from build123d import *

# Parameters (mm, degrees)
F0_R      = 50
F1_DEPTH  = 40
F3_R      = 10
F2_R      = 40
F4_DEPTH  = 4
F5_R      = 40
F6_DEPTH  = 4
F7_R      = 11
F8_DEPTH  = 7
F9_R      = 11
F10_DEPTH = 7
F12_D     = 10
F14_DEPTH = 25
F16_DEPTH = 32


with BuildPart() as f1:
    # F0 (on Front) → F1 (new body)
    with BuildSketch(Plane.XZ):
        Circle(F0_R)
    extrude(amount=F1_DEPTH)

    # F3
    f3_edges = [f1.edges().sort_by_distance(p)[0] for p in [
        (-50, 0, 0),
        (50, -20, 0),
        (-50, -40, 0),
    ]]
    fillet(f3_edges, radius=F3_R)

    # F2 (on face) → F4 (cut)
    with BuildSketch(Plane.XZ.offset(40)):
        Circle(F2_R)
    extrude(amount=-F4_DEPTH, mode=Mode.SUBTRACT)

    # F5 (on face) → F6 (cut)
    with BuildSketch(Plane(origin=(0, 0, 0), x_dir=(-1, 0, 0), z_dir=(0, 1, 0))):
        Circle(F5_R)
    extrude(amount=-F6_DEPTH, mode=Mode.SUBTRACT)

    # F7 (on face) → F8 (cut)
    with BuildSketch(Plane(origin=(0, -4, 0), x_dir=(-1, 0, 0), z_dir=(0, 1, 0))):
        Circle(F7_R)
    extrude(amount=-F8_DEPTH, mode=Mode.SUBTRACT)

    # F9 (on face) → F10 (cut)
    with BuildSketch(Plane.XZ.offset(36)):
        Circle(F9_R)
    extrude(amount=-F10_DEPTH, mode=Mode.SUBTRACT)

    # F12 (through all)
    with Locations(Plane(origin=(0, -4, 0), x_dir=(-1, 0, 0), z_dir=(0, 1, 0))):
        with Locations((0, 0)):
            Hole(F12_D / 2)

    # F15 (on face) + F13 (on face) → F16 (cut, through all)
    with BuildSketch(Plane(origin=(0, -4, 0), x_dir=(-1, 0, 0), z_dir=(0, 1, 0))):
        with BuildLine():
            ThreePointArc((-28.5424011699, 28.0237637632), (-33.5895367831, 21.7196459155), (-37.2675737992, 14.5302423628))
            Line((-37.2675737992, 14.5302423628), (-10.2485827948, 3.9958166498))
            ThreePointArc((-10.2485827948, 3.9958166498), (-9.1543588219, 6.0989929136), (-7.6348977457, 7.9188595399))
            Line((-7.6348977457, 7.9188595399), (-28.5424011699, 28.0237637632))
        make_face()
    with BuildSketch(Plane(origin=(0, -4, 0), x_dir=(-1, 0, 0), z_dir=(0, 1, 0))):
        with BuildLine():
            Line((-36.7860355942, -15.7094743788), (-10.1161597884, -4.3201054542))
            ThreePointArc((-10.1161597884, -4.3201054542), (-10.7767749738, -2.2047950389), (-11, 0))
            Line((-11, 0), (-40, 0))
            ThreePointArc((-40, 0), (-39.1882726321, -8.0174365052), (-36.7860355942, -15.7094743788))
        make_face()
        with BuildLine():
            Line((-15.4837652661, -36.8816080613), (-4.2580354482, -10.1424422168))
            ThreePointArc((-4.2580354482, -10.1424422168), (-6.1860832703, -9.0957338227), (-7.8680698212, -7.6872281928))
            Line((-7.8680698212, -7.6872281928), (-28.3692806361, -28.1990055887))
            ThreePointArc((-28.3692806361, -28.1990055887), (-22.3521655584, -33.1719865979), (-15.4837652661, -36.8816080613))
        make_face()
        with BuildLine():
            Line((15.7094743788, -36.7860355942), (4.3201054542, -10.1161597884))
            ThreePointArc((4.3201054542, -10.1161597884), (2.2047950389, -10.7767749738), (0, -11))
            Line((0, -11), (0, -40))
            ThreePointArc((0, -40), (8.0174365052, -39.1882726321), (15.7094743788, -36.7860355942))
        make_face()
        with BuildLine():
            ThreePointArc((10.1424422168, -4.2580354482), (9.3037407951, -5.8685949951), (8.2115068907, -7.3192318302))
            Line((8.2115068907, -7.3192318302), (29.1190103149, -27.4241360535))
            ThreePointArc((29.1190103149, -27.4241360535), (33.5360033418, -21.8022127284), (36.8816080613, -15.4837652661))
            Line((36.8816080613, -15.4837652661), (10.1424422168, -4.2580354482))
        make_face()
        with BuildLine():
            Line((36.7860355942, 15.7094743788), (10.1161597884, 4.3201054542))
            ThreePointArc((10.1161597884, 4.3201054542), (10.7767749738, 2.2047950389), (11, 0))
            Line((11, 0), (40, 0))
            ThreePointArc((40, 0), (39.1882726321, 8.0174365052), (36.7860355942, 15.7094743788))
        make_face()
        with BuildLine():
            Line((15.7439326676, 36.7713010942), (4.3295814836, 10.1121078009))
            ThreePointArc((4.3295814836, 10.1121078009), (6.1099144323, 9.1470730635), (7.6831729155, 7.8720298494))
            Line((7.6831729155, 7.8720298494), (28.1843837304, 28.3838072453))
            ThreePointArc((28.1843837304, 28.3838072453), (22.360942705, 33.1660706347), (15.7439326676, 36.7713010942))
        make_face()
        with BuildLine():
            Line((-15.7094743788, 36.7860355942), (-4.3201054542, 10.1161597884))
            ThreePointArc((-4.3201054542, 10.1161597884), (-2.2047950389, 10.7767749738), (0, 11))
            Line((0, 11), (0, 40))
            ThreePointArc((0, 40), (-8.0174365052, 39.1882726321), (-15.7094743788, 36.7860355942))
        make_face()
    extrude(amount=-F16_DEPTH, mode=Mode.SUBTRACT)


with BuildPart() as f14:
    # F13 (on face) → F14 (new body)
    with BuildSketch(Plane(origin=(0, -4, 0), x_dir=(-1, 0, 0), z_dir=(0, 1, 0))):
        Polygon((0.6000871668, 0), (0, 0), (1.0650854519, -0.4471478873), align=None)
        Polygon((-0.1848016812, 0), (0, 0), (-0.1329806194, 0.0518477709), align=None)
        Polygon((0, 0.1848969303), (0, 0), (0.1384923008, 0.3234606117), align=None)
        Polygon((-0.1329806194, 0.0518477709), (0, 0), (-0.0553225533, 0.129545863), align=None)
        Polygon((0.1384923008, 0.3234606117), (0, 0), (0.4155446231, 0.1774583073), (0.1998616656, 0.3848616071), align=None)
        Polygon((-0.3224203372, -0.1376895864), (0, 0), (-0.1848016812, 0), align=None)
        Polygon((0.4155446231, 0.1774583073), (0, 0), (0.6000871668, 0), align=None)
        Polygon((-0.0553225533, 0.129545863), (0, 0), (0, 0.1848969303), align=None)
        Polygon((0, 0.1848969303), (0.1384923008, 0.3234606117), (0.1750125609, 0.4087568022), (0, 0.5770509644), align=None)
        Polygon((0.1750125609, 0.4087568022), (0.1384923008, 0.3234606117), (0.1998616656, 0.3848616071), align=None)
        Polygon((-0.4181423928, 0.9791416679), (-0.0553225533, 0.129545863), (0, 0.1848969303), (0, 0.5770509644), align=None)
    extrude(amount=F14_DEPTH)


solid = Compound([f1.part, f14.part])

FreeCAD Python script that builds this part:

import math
import FreeCAD as App
import Part
import Sketcher
from FreeCAD import Vector

doc = App.newDocument("Part")
body = doc.addObject("PartDesign::Body", "Body")

# Sketch on XZ plane
sketch1 = doc.addObject("Sketcher::SketchObject", "Sketch")
body.addObject(sketch1)
sketch1.AttachmentSupport = (doc.XZ_Plane, [""])
sketch1.MapMode = "FlatFace"
sketch1.addGeometry(Part.Circle(Vector(0, 0, 0), Vector(0, 0, 1), 50), False)
sketch1.addConstraint(Sketcher.Constraint("Coincident", 0, 3, -1, 1))
sketch1.addConstraint(Sketcher.Constraint("Diameter", 0, 100.0))
pad1 = doc.addObject("PartDesign::Pad", "Pad")
body.addObject(pad1)
pad1.Profile = sketch1
pad1.Length = 40
doc.recompute()

fillet = doc.addObject("PartDesign::Fillet", "Fillet")
body.addObject(fillet)
fillet.Base = (pad1, ["Edge1"])
fillet.UseAllEdges = True
fillet.Radius = 10

# Sketch on XZ plane
sketch2 = doc.addObject("Sketcher::SketchObject", "Sketch001")
body.addObject(sketch2)
sketch2.AttachmentSupport = (doc.XZ_Plane, [""])
sketch2.MapMode = "FlatFace"
sketch2.AttachmentOffset = App.Placement(Vector(0, 0, 40), App.Rotation())
sketch2.addGeometry(Part.Circle(Vector(0, 0, 0), Vector(0, 0, 1), 40), False)
sketch2.addConstraint(Sketcher.Constraint("Coincident", 0, 3, -1, 1))
sketch2.addConstraint(Sketcher.Constraint("Diameter", 0, 80.0))
pocket1 = doc.addObject("PartDesign::Pocket", "Pocket")
body.addObject(pocket1)
pocket1.Profile = sketch2
pocket1.Length = 4

# Sketch on XZ plane
sketch3 = doc.addObject("Sketcher::SketchObject", "Sketch002")
body.addObject(sketch3)
sketch3.AttachmentSupport = (doc.XZ_Plane, [""])
sketch3.MapMode = "FlatFace"
sketch3.addGeometry(Part.Circle(Vector(0, 0, 0), Vector(0, 0, 1), 40), False)
sketch3.addConstraint(Sketcher.Constraint("Coincident", 0, 3, -1, 1))
sketch3.addConstraint(Sketcher.Constraint("Diameter", 0, 80.0))
pocket2 = doc.addObject("PartDesign::Pocket", "Pocket001")
body.addObject(pocket2)
pocket2.Profile = sketch3
pocket2.Length = 4
pocket2.Reversed = True

# Sketch on XZ plane
sketch4 = doc.addObject("Sketcher::SketchObject", "Sketch003")
body.addObject(sketch4)
sketch4.AttachmentSupport = (doc.XZ_Plane, [""])
sketch4.MapMode = "FlatFace"
sketch4.AttachmentOffset = App.Placement(Vector(0, 0, 4), App.Rotation())
sketch4.addGeometry(Part.Circle(Vector(0, 0, 0), Vector(0, 0, 1), 11), False)
sketch4.addConstraint(Sketcher.Constraint("Coincident", 0, 3, -1, 1))
sketch4.addConstraint(Sketcher.Constraint("Diameter", 0, 22.0))
pocket3 = doc.addObject("PartDesign::Pocket", "Pocket002")
body.addObject(pocket3)
pocket3.Profile = sketch4
pocket3.Length = 7
pocket3.Reversed = True

# Sketch on XZ plane
sketch5 = doc.addObject("Sketcher::SketchObject", "Sketch004")
body.addObject(sketch5)
sketch5.AttachmentSupport = (doc.XZ_Plane, [""])
sketch5.MapMode = "FlatFace"
sketch5.AttachmentOffset = App.Placement(Vector(0, 0, 36), App.Rotation())
sketch5.addGeometry(Part.Circle(Vector(0, 0, 0), Vector(0, 0, 1), 11), False)
sketch5.addConstraint(Sketcher.Constraint("Coincident", 0, 3, -1, 1))
sketch5.addConstraint(Sketcher.Constraint("Diameter", 0, 22.0))
pocket4 = doc.addObject("PartDesign::Pocket", "Pocket003")
body.addObject(pocket4)
pocket4.Profile = sketch5
pocket4.Length = 7

# Sketch on XZ plane
sketch6 = doc.addObject("Sketcher::SketchObject", "Sketch005")
body.addObject(sketch6)
sketch6.AttachmentSupport = (doc.XZ_Plane, [""])
sketch6.MapMode = "FlatFace"
sketch6.AttachmentOffset = App.Placement(Vector(0, 0, 4), App.Rotation())
sketch6.addGeometry(Part.Circle(Vector(0, 0, 0), Vector(0, 0, 1), 5), False)
sketch6.addConstraint(Sketcher.Constraint("Coincident", 0, 3, -1, 1))
sketch6.addConstraint(Sketcher.Constraint("Diameter", 0, 10.0))
doc.recompute()
hole = doc.addObject("PartDesign::Hole", "Hole")
body.addObject(hole)
hole.Profile = sketch6
hole.ThreadType = "None"
hole.Diameter = 10
hole.DepthType = "ThroughAll"
hole.Reversed = True

# Sketch on XZ plane
sketch7 = doc.addObject("Sketcher::SketchObject", "Sketch006")
body.addObject(sketch7)
sketch7.AttachmentSupport = (doc.XZ_Plane, [""])
sketch7.MapMode = "FlatFace"
sketch7.AttachmentOffset = App.Placement(Vector(0, 0, 4), App.Rotation())
sketch7.addGeometry(Part.ArcOfCircle(Part.Circle(Vector(0, 0, 0), Vector(0, 0, 1), 40), math.radians(21), math.radians(44)), False)
sketch7.addGeometry(Part.LineSegment(Vector(37.3, 14.5, 0), Vector(10.2, 4, 0)), False)
sketch7.addGeometry(Part.ArcOfCircle(Part.Circle(Vector(0, 0, 0), Vector(0, 0, 1), 11), math.radians(21), math.radians(46)), False)
sketch7.addGeometry(Part.LineSegment(Vector(7.6, 7.9, 0), Vector(28.5, 28, 0)), False)
sketch7.addGeometry(Part.LineSegment(Vector(36.8, -15.7, 0), Vector(10.1, -4.3, 0)), False)
sketch7.addGeometry(Part.ArcOfCircle(Part.Circle(Vector(0, 0, 0), Vector(0, 0, 1), 11), math.radians(-23), math.radians(0)), False)
sketch7.addGeometry(Part.LineSegment(Vector(11, 0, 0), Vector(40, 0, 0)), False)
sketch7.addGeometry(Part.ArcOfCircle(Part.Circle(Vector(0, 0, 0), Vector(0, 0, 1), 40), math.radians(-23), math.radians(0)), False)
sketch7.addGeometry(Part.LineSegment(Vector(15.5, -36.9, 0), Vector(4.3, -10.1, 0)), False)
sketch7.addGeometry(Part.ArcOfCircle(Part.Circle(Vector(0, 0, 0), Vector(0, 0, 1), 11), math.radians(-67), math.radians(-44)), False)
sketch7.addGeometry(Part.LineSegment(Vector(7.9, -7.7, 0), Vector(28.4, -28.2, 0)), False)
sketch7.addGeometry(Part.ArcOfCircle(Part.Circle(Vector(0, 0, 0), Vector(0, 0, 1), 40), math.radians(-67), math.radians(-45)), False)
sketch7.addGeometry(Part.LineSegment(Vector(-15.7, -36.8, 0), Vector(-4.3, -10.1, 0)), False)
sketch7.addGeometry(Part.ArcOfCircle(Part.Circle(Vector(0, 0, 0), Vector(0, 0, 1), 11), math.radians(-113), math.radians(-90)), False)
sketch7.addGeometry(Part.LineSegment(Vector(0, -11, 0), Vector(0, -40, 0)), False)
sketch7.addGeometry(Part.ArcOfCircle(Part.Circle(Vector(0, 0, 0), Vector(0, 0, 1), 40), math.radians(-113), math.radians(-90)), False)
sketch7.addGeometry(Part.ArcOfCircle(Part.Circle(Vector(0, 0, 0), Vector(0, 0, 1), 11), math.radians(-157.23), math.radians(-138.29)), False)
sketch7.addGeometry(Part.LineSegment(Vector(-8.2, -7.3, 0), Vector(-29.1, -27.4, 0)), False)
sketch7.addGeometry(Part.ArcOfCircle(Part.Circle(Vector(0, 0, 0), Vector(0, 0, 1), 40), math.radians(-157), math.radians(-137)), False)
sketch7.addGeometry(Part.LineSegment(Vector(-36.9, -15.5, 0), Vector(-10.1, -4.3, 0)), False)
sketch7.addGeometry(Part.LineSegment(Vector(-36.8, 15.7, 0), Vector(-10.1, 4.3, 0)), False)
sketch7.addGeometry(Part.ArcOfCircle(Part.Circle(Vector(0, 0, 0), Vector(0, 0, 1), 11), math.radians(157), math.radians(180)), False)
sketch7.addGeometry(Part.LineSegment(Vector(-11, 0, 0), Vector(-40, 0, 0)), False)
sketch7.addGeometry(Part.ArcOfCircle(Part.Circle(Vector(0, 0, 0), Vector(0, 0, 1), 40), math.radians(157), math.radians(180)), False)
sketch7.addGeometry(Part.LineSegment(Vector(-15.7, 36.8, 0), Vector(-4.3, 10.1, 0)), False)
sketch7.addGeometry(Part.ArcOfCircle(Part.Circle(Vector(0, 0, 0), Vector(0, 0, 1), 11), math.radians(113), math.radians(134)), False)
sketch7.addGeometry(Part.LineSegment(Vector(-7.7, 7.9, 0), Vector(-28.2, 28.4, 0)), False)
sketch7.addGeometry(Part.ArcOfCircle(Part.Circle(Vector(0, 0, 0), Vector(0, 0, 1), 40), math.radians(113), math.radians(135)), False)
sketch7.addGeometry(Part.LineSegment(Vector(15.7, 36.8, 0), Vector(4.3, 10.1, 0)), False)
sketch7.addGeometry(Part.ArcOfCircle(Part.Circle(Vector(0, 0, 0), Vector(0, 0, 1), 11), math.radians(67), math.radians(90)), False)
sketch7.addGeometry(Part.LineSegment(Vector(0, 11, 0), Vector(0, 40, 0)), False)
sketch7.addGeometry(Part.ArcOfCircle(Part.Circle(Vector(0, 0, 0), Vector(0, 0, 1), 40), math.radians(67), math.radians(90)), False)
sketch7.addConstraint(Sketcher.Constraint("Coincident", 0, 1, 1, 1))
sketch7.addConstraint(Sketcher.Constraint("Coincident", 1, 2, 2, 1))
sketch7.addConstraint(Sketcher.Constraint("Coincident", 2, 2, 3, 1))
sketch7.addConstraint(Sketcher.Constraint("Coincident", 3, 2, 0, 2))
sketch7.addConstraint(Sketcher.Constraint("Coincident", 4, 2, 5, 1))
sketch7.addConstraint(Sketcher.Constraint("Coincident", 5, 2, 6, 1))
sketch7.addConstraint(Sketcher.Constraint("Coincident", 6, 2, 7, 2))
sketch7.addConstraint(Sketcher.Constraint("Coincident", 7, 1, 4, 1))
sketch7.addConstraint(Sketcher.Constraint("Coincident", 8, 2, 9, 1))
sketch7.addConstraint(Sketcher.Constraint("Coincident", 9, 2, 10, 1))
sketch7.addConstraint(Sketcher.Constraint("Coincident", 10, 2, 11, 2))
sketch7.addConstraint(Sketcher.Constraint("Coincident", 11, 1, 8, 1))
sketch7.addConstraint(Sketcher.Constraint("Coincident", 12, 2, 13, 1))
sketch7.addConstraint(Sketcher.Constraint("Coincident", 13, 2, 14, 1))
sketch7.addConstraint(Sketcher.Constraint("Coincident", 14, 2, 15, 2))
sketch7.addConstraint(Sketcher.Constraint("Coincident", 15, 1, 12, 1))
sketch7.addConstraint(Sketcher.Constraint("Coincident", 16, 2, 17, 1))
sketch7.addConstraint(Sketcher.Constraint("Coincident", 17, 2, 18, 2))
sketch7.addConstraint(Sketcher.Constraint("Coincident", 18, 1, 19, 1))
sketch7.addConstraint(Sketcher.Constraint("Coincident", 19, 2, 16, 1))
sketch7.addConstraint(Sketcher.Constraint("Coincident", 20, 2, 21, 1))
sketch7.addConstraint(Sketcher.Constraint("Coincident", 21, 2, 22, 1))
sketch7.addConstraint(Sketcher.Constraint("Coincident", 22, 2, 23, 2))
sketch7.addConstraint(Sketcher.Constraint("Coincident", 23, 1, 20, 1))
sketch7.addConstraint(Sketcher.Constraint("Coincident", 24, 2, 25, 1))
sketch7.addConstraint(Sketcher.Constraint("Coincident", 25, 2, 26, 1))
sketch7.addConstraint(Sketcher.Constraint("Coincident", 26, 2, 27, 2))
sketch7.addConstraint(Sketcher.Constraint("Coincident", 27, 1, 24, 1))
sketch7.addConstraint(Sketcher.Constraint("Coincident", 28, 2, 29, 1))
sketch7.addConstraint(Sketcher.Constraint("Coincident", 29, 2, 30, 1))
sketch7.addConstraint(Sketcher.Constraint("Coincident", 30, 2, 31, 2))
sketch7.addConstraint(Sketcher.Constraint("Coincident", 31, 1, 28, 1))
sketch7.addConstraint(Sketcher.Constraint("Horizontal", 6))
sketch7.addConstraint(Sketcher.Constraint("Vertical", 14))
sketch7.addConstraint(Sketcher.Constraint("Horizontal", 22))
sketch7.addConstraint(Sketcher.Constraint("Vertical", 30))
sketch7.addConstraint(Sketcher.Constraint("Coincident", 0, 3, -1, 1))
sketch7.addConstraint(Sketcher.Constraint("Coincident", 2, 3, -1, 1))
sketch7.addConstraint(Sketcher.Constraint("Coincident", 5, 3, -1, 1))
sketch7.addConstraint(Sketcher.Constraint("Coincident", 7, 3, -1, 1))
sketch7.addConstraint(Sketcher.Constraint("Coincident", 9, 3, -1, 1))
sketch7.addConstraint(Sketcher.Constraint("Coincident", 11, 3, -1, 1))
sketch7.addConstraint(Sketcher.Constraint("Coincident", 13, 3, -1, 1))
sketch7.addConstraint(Sketcher.Constraint("Coincident", 15, 3, -1, 1))
sketch7.addConstraint(Sketcher.Constraint("Coincident", 16, 3, -1, 1))
sketch7.addConstraint(Sketcher.Constraint("Coincident", 18, 3, -1, 1))
sketch7.addConstraint(Sketcher.Constraint("Coincident", 21, 3, -1, 1))
sketch7.addConstraint(Sketcher.Constraint("Coincident", 23, 3, -1, 1))
sketch7.addConstraint(Sketcher.Constraint("Coincident", 25, 3, -1, 1))
sketch7.addConstraint(Sketcher.Constraint("Coincident", 27, 3, -1, 1))
sketch7.addConstraint(Sketcher.Constraint("Coincident", 29, 3, -1, 1))
sketch7.addConstraint(Sketcher.Constraint("Coincident", 31, 3, -1, 1))
sketch7.addConstraint(Sketcher.Constraint("Equal", 2, 5))
sketch7.addConstraint(Sketcher.Constraint("Equal", 0, 7))
sketch7.addConstraint(Sketcher.Constraint("Equal", 5, 9))
sketch7.addConstraint(Sketcher.Constraint("Equal", 7, 11))
sketch7.addConstraint(Sketcher.Constraint("Equal", 9, 13))
sketch7.addConstraint(Sketcher.Constraint("Equal", 11, 15))
sketch7.addConstraint(Sketcher.Constraint("Equal", 13, 16))
sketch7.addConstraint(Sketcher.Constraint("Equal", 15, 18))
sketch7.addConstraint(Sketcher.Constraint("Equal", 16, 21))
sketch7.addConstraint(Sketcher.Constraint("Equal", 18, 23))
sketch7.addConstraint(Sketcher.Constraint("Equal", 21, 25))
sketch7.addConstraint(Sketcher.Constraint("Equal", 23, 27))
sketch7.addConstraint(Sketcher.Constraint("Equal", 25, 29))
sketch7.addConstraint(Sketcher.Constraint("Equal", 27, 31))
sketch7.addConstraint(Sketcher.Constraint("PointOnObject", 5, 2, -1))
sketch7.addConstraint(Sketcher.Constraint("PointOnObject", 13, 2, -2))
sketch7.addConstraint(Sketcher.Constraint("PointOnObject", 21, 2, -1))
sketch7.addConstraint(Sketcher.Constraint("PointOnObject", 29, 2, -2))
sketch7.addConstraint(Sketcher.Constraint("Perpendicular", 4, 12))
sketch7.addConstraint(Sketcher.Constraint("Parallel", 3, 17))
sketch7.addConstraint(Sketcher.Constraint("Perpendicular", 8, 19))
sketch7.addConstraint(Sketcher.Constraint("Perpendicular", 12, 20))
sketch7.addConstraint(Sketcher.Constraint("Parallel", 10, 26))
sketch7.addConstraint(Sketcher.Constraint("Perpendicular", 20, 28))
sketch7.addConstraint(Sketcher.Constraint("Equal", 3, 17))
sketch7.addConstraint(Sketcher.Constraint("Equal", 10, 26))
sketch7.addConstraint(Sketcher.Constraint("Radius", 0, 40.0))
sketch7.addConstraint(Sketcher.Constraint("Radius", 2, 11.0))
sketch7.addConstraint(Sketcher.Constraint("DistanceX", -1, 1, 3, 2, 28.542401))
sketch7.addConstraint(Sketcher.Constraint("DistanceY", -1, 1, 27, 1, 36.771301))
sketch7.addConstraint(Sketcher.Constraint("DistanceY", 10, 2, 4, 2, 23.8789))
sketch7.addConstraint(Sketcher.Constraint("DistanceX", 16, 2, 12, 2, 3.891401))
sketch7.addConstraint(Sketcher.Constraint("DistanceY", 15, 1, 17, 2, 9.3619))
sketch7.addConstraint(Sketcher.Constraint("DistanceX", 18, 1, 16, 2, 28.670101))
sketch7.addConstraint(Sketcher.Constraint("DistanceY", 24, 2, 26, 2, 18.271699))
sketch7.addConstraint(Sketcher.Constraint("DistanceY", 20, 2, 26, 2, 24.063702))
sketch7.addConstraint(Sketcher.Constraint("DistanceY", 2, 2, 28, 2, 2.1973))
sketch7.addConstraint(Sketcher.Constraint("DistanceY", -1, 1, 2, 2, 7.91886))
sketch7.addConstraint(Sketcher.Constraint("DistanceX", -1, 1, 4, 2, 10.11616))
sketch7.addConstraint(Sketcher.Constraint("DistanceX", -1, 1, 9, 2, 7.86807))
sketch7.addConstraint(Sketcher.Constraint("DistanceY", 11, 1, -1, 1, 36.881608))
sketch7.addConstraint(Sketcher.Constraint("DistanceY", 0, 1, 3, 2, 13.493521))
sketch7.addConstraint(Sketcher.Constraint("DistanceX", 1, 2, 3, 2, 18.293818))
sketch7.addConstraint(Sketcher.Constraint("DistanceX", 8, 2, 11, 1, 11.22573))
pocket5 = doc.addObject("PartDesign::Pocket", "Pocket004")
body.addObject(pocket5)
pocket5.Profile = sketch7
pocket5.Type = "ThroughAll"
pocket5.Reversed = True
body2 = doc.addObject("PartDesign::Body", "Body001")

# Sketch on XZ plane
sketch8 = doc.addObject("Sketcher::SketchObject", "Sketch007")
body2.addObject(sketch8)
sketch8.AttachmentSupport = (doc.getObject("XZ_Plane001"), [""])
sketch8.MapMode = "FlatFace"
sketch8.AttachmentOffset = App.Placement(Vector(0, 0, 4), App.Rotation())
sketch8.addGeometry(Part.LineSegment(Vector(0, 0, 0), Vector(-1.065, -0.447, 0)), False)
sketch8.addGeometry(Part.LineSegment(Vector(-1.065, -0.447, 0), Vector(-0.6, 0, 0)), False)
sketch8.addGeometry(Part.LineSegment(Vector(-0.6, 0, 0), Vector(-0.416, 0.177, 0)), False)
sketch8.addGeometry(Part.LineSegment(Vector(-0.416, 0.177, 0), Vector(-0.2, 0.385, 0)), False)
sketch8.addGeometry(Part.LineSegment(Vector(-0.2, 0.385, 0), Vector(-0.175, 0.409, 0)), False)
sketch8.addGeometry(Part.LineSegment(Vector(-0.175, 0.409, 0), Vector(0, 0.577, 0)), False)
sketch8.addGeometry(Part.LineSegment(Vector(0, 0.577, 0), Vector(0.418, 0.979, 0)), False)
sketch8.addGeometry(Part.LineSegment(Vector(0.418, 0.979, 0), Vector(0.055, 0.13, 0)), False)
sketch8.addGeometry(Part.LineSegment(Vector(0.055, 0.13, 0), Vector(0.133, 0.052, 0)), False)
sketch8.addGeometry(Part.LineSegment(Vector(0.133, 0.052, 0), Vector(0.185, 0, 0)), False)
sketch8.addGeometry(Part.LineSegment(Vector(0.185, 0, 0), Vector(0.322, -0.138, 0)), False)
sketch8.addGeometry(Part.LineSegment(Vector(0.322, -0.138, 0), Vector(0, 0, 0)), False)
sketch8.addConstraint(Sketcher.Constraint("Coincident", 0, 2, 1, 1))
sketch8.addConstraint(Sketcher.Constraint("Coincident", 1, 2, 2, 1))
sketch8.addConstraint(Sketcher.Constraint("Coincident", 2, 2, 3, 1))
sketch8.addConstraint(Sketcher.Constraint("Coincident", 3, 2, 4, 1))
sketch8.addConstraint(Sketcher.Constraint("Coincident", 4, 2, 5, 1))
sketch8.addConstraint(Sketcher.Constraint("Coincident", 5, 2, 6, 1))
sketch8.addConstraint(Sketcher.Constraint("Coincident", 6, 2, 7, 1))
sketch8.addConstraint(Sketcher.Constraint("Coincident", 7, 2, 8, 1))
sketch8.addConstraint(Sketcher.Constraint("Coincident", 8, 2, 9, 1))
sketch8.addConstraint(Sketcher.Constraint("Coincident", 9, 2, 10, 1))
sketch8.addConstraint(Sketcher.Constraint("Coincident", 10, 2, 11, 1))
sketch8.addConstraint(Sketcher.Constraint("Coincident", 11, 2, 0, 1))
sketch8.addConstraint(Sketcher.Constraint("Coincident", 11, 2, -1, 1))
sketch8.addConstraint(Sketcher.Constraint("PointOnObject", 1, 2, -1))
sketch8.addConstraint(Sketcher.Constraint("PointOnObject", 5, 2, -2))
sketch8.addConstraint(Sketcher.Constraint("PointOnObject", 9, 2, -1))
sketch8.addConstraint(Sketcher.Constraint("Parallel", 1, 2))
sketch8.addConstraint(Sketcher.Constraint("Parallel", 2, 3))
sketch8.addConstraint(Sketcher.Constraint("Parallel", 3, 4))
sketch8.addConstraint(Sketcher.Constraint("Parallel", 4, 5))
sketch8.addConstraint(Sketcher.Constraint("Parallel", 5, 6))
sketch8.addConstraint(Sketcher.Constraint("Parallel", 8, 9))
sketch8.addConstraint(Sketcher.Constraint("Parallel", 9, 10))
sketch8.addConstraint(Sketcher.Constraint("Perpendicular", 7, 11))
sketch8.addConstraint(Sketcher.Constraint("DistanceX", 0, 2, 1, 2, 0.464998))
sketch8.addConstraint(Sketcher.Constraint("Distance", 5, 0.242801))
sketch8.addConstraint(Sketcher.Constraint("DistanceX", -1, 1, 9, 2, 0.184802))
sketch8.addConstraint(Sketcher.Constraint("DistanceY", 2, 2, 4, 2, 0.231298))
sketch8.addConstraint(Sketcher.Constraint("DistanceY", 0, 2, 5, 2, 1.024199))
sketch8.addConstraint(Sketcher.Constraint("DistanceY", 8, 2, 7, 2, 0.077698))
sketch8.addConstraint(Sketcher.Constraint("Distance", 0, 1.15514))
sketch8.addConstraint(Sketcher.Constraint("Distance", 11, 0.35059))
sketch8.addConstraint(Sketcher.Constraint("DistanceX", 3, 2, -1, 1, 0.199862))
sketch8.addConstraint(Sketcher.Constraint("DistanceY", -1, 1, 6, 2, 0.979142))
sketch8.addConstraint(Sketcher.Constraint("DistanceX", -1, 1, 8, 2, 0.132981))
pad2 = doc.addObject("PartDesign::Pad", "Pad001")
body2.addObject(pad2)
pad2.Profile = sketch8
pad2.Length = 25
pad2.Reversed = True

doc.recompute()
